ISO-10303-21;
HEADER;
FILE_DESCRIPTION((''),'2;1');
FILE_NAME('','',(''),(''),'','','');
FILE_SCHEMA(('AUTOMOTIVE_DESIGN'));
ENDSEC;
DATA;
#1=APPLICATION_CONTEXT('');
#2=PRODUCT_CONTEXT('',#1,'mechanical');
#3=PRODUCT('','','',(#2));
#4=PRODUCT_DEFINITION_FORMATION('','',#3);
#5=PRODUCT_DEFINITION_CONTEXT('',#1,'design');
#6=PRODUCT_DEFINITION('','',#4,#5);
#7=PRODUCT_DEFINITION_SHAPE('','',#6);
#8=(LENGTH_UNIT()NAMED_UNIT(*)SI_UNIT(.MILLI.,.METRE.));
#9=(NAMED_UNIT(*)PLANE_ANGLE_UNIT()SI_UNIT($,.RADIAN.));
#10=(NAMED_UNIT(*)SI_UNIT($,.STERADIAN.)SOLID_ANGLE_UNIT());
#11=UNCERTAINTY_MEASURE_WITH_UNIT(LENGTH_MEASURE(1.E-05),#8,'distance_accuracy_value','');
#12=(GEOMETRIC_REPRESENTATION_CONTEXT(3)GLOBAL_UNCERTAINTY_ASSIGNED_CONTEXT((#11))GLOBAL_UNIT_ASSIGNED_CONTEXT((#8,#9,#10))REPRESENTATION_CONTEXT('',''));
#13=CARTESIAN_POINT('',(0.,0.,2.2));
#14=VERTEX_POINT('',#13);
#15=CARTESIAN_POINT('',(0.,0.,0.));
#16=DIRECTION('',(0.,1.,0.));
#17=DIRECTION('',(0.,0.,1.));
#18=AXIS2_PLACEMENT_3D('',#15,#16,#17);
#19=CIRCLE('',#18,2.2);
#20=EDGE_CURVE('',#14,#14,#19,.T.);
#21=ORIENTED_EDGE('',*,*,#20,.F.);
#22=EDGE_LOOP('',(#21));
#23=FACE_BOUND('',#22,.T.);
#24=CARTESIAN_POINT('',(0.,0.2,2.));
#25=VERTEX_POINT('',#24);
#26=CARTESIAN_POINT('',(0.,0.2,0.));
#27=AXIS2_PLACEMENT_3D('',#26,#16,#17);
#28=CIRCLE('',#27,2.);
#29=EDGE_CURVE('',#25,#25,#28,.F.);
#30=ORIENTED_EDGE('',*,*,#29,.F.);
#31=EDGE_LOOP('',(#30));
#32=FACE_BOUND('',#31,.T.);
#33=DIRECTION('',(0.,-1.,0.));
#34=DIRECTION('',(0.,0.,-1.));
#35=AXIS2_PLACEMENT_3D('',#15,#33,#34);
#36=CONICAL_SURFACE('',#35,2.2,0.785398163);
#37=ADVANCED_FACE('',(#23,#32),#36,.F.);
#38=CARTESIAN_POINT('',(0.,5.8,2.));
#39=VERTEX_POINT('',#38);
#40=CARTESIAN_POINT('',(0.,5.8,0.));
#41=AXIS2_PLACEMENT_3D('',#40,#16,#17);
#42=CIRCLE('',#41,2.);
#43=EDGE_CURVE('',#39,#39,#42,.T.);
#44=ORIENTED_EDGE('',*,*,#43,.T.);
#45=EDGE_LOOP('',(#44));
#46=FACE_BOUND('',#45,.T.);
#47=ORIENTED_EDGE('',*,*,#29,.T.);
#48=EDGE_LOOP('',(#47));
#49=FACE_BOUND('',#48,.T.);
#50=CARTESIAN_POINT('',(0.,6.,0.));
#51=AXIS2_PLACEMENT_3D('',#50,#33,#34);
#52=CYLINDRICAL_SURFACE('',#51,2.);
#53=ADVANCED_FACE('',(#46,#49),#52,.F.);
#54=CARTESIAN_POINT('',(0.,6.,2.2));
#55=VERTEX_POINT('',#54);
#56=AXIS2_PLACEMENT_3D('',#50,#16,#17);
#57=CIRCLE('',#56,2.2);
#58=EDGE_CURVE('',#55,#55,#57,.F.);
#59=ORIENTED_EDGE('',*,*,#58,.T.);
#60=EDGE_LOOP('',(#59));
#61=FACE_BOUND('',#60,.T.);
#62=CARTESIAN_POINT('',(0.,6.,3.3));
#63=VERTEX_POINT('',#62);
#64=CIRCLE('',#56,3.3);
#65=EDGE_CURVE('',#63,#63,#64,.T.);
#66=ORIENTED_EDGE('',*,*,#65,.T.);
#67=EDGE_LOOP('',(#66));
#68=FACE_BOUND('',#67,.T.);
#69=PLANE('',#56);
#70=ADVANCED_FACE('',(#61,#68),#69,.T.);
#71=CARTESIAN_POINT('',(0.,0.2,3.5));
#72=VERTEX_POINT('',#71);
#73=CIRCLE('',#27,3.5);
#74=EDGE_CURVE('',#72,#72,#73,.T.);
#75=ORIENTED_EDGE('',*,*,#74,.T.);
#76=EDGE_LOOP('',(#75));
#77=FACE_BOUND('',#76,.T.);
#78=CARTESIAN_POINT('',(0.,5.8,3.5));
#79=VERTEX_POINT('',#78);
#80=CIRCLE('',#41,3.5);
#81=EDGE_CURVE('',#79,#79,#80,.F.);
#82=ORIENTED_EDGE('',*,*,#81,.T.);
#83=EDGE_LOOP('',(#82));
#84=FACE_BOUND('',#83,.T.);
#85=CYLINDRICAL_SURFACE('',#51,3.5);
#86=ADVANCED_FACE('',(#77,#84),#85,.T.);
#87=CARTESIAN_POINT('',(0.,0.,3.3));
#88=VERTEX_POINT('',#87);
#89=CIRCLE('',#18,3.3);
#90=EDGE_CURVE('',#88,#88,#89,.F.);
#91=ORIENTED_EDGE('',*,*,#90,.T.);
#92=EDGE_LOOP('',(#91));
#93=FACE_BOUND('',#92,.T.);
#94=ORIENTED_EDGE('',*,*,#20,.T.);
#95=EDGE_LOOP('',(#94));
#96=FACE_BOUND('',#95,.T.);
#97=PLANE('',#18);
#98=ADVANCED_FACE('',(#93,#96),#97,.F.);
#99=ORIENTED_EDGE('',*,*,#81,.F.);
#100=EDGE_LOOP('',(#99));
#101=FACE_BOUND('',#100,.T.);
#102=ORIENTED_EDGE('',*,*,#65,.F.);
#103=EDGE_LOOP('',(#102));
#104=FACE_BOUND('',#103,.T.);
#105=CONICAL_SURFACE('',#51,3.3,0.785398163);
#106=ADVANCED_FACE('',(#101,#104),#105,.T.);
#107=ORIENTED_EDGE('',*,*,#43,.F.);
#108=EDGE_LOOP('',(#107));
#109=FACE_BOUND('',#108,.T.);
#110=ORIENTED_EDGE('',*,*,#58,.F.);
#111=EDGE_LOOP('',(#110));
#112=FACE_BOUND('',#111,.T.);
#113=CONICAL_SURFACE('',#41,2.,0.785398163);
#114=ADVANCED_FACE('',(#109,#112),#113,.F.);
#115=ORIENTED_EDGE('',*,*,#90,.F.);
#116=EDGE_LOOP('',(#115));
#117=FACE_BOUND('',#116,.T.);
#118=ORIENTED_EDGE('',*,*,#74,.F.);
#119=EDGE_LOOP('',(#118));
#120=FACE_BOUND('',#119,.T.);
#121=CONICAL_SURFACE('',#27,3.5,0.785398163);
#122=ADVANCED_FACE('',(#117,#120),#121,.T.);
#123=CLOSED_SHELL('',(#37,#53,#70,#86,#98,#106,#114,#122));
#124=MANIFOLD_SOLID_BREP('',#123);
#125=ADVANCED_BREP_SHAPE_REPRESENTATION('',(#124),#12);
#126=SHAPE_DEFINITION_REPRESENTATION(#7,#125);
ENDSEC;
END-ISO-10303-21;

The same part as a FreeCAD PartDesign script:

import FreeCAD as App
import Part
import Sketcher


def edges_at(feature, points):
    """Names of the edges that pass closest to the given points."""
    edges = feature.Shape.Edges
    near = lambda p: min(range(len(edges)), key=lambda i: edges[i].distToShape(Part.Vertex(*p))[0])
    return sorted({f"Edge{near(p) + 1}" for p in points})

doc = App.newDocument("Part")
body = doc.addObject("PartDesign::Body", "Body")

# Sketch on XZ plane
sketch1 = doc.addObject("Sketcher::SketchObject", "Sketch")
body.addObject(sketch1)
sketch1.AttachmentSupport = (doc.XZ_Plane, [""])
sketch1.MapMode = "FlatFace"
sketch1.addGeometry([
    Part.Circle(App.Vector(0, 0, 0), App.Vector(0, 0, 1), 3.5),
    Part.Circle(App.Vector(0, 0, 0), App.Vector(0, 0, 1), 2),
], False)
sketch1.addConstraint([
    Sketcher.Constraint("Coincident", 0, 3, -1, 1),
    Sketcher.Constraint("Coincident", 1, 3, -1, 1),
    Sketcher.Constraint("Diameter", 0, 7.0),
    Sketcher.Constraint("Diameter", 1, 4.0),
])
pad1 = doc.addObject("PartDesign::Pad", "Pad")
body.addObject(pad1)
pad1.Profile = sketch1
pad1.Length = 6
pad1.Reversed = True
doc.recompute()

chamfer = doc.addObject("PartDesign::Chamfer", "Chamfer")
body.addObject(chamfer)
chamfer.Base = (pad1, edges_at(pad1, [
    (0, 0, -3.5),
    (0, 6, -3.5),
    (0, 0, -2),
    (0, 6, -2),
]))
chamfer.Size = 0.2

doc.recompute()
